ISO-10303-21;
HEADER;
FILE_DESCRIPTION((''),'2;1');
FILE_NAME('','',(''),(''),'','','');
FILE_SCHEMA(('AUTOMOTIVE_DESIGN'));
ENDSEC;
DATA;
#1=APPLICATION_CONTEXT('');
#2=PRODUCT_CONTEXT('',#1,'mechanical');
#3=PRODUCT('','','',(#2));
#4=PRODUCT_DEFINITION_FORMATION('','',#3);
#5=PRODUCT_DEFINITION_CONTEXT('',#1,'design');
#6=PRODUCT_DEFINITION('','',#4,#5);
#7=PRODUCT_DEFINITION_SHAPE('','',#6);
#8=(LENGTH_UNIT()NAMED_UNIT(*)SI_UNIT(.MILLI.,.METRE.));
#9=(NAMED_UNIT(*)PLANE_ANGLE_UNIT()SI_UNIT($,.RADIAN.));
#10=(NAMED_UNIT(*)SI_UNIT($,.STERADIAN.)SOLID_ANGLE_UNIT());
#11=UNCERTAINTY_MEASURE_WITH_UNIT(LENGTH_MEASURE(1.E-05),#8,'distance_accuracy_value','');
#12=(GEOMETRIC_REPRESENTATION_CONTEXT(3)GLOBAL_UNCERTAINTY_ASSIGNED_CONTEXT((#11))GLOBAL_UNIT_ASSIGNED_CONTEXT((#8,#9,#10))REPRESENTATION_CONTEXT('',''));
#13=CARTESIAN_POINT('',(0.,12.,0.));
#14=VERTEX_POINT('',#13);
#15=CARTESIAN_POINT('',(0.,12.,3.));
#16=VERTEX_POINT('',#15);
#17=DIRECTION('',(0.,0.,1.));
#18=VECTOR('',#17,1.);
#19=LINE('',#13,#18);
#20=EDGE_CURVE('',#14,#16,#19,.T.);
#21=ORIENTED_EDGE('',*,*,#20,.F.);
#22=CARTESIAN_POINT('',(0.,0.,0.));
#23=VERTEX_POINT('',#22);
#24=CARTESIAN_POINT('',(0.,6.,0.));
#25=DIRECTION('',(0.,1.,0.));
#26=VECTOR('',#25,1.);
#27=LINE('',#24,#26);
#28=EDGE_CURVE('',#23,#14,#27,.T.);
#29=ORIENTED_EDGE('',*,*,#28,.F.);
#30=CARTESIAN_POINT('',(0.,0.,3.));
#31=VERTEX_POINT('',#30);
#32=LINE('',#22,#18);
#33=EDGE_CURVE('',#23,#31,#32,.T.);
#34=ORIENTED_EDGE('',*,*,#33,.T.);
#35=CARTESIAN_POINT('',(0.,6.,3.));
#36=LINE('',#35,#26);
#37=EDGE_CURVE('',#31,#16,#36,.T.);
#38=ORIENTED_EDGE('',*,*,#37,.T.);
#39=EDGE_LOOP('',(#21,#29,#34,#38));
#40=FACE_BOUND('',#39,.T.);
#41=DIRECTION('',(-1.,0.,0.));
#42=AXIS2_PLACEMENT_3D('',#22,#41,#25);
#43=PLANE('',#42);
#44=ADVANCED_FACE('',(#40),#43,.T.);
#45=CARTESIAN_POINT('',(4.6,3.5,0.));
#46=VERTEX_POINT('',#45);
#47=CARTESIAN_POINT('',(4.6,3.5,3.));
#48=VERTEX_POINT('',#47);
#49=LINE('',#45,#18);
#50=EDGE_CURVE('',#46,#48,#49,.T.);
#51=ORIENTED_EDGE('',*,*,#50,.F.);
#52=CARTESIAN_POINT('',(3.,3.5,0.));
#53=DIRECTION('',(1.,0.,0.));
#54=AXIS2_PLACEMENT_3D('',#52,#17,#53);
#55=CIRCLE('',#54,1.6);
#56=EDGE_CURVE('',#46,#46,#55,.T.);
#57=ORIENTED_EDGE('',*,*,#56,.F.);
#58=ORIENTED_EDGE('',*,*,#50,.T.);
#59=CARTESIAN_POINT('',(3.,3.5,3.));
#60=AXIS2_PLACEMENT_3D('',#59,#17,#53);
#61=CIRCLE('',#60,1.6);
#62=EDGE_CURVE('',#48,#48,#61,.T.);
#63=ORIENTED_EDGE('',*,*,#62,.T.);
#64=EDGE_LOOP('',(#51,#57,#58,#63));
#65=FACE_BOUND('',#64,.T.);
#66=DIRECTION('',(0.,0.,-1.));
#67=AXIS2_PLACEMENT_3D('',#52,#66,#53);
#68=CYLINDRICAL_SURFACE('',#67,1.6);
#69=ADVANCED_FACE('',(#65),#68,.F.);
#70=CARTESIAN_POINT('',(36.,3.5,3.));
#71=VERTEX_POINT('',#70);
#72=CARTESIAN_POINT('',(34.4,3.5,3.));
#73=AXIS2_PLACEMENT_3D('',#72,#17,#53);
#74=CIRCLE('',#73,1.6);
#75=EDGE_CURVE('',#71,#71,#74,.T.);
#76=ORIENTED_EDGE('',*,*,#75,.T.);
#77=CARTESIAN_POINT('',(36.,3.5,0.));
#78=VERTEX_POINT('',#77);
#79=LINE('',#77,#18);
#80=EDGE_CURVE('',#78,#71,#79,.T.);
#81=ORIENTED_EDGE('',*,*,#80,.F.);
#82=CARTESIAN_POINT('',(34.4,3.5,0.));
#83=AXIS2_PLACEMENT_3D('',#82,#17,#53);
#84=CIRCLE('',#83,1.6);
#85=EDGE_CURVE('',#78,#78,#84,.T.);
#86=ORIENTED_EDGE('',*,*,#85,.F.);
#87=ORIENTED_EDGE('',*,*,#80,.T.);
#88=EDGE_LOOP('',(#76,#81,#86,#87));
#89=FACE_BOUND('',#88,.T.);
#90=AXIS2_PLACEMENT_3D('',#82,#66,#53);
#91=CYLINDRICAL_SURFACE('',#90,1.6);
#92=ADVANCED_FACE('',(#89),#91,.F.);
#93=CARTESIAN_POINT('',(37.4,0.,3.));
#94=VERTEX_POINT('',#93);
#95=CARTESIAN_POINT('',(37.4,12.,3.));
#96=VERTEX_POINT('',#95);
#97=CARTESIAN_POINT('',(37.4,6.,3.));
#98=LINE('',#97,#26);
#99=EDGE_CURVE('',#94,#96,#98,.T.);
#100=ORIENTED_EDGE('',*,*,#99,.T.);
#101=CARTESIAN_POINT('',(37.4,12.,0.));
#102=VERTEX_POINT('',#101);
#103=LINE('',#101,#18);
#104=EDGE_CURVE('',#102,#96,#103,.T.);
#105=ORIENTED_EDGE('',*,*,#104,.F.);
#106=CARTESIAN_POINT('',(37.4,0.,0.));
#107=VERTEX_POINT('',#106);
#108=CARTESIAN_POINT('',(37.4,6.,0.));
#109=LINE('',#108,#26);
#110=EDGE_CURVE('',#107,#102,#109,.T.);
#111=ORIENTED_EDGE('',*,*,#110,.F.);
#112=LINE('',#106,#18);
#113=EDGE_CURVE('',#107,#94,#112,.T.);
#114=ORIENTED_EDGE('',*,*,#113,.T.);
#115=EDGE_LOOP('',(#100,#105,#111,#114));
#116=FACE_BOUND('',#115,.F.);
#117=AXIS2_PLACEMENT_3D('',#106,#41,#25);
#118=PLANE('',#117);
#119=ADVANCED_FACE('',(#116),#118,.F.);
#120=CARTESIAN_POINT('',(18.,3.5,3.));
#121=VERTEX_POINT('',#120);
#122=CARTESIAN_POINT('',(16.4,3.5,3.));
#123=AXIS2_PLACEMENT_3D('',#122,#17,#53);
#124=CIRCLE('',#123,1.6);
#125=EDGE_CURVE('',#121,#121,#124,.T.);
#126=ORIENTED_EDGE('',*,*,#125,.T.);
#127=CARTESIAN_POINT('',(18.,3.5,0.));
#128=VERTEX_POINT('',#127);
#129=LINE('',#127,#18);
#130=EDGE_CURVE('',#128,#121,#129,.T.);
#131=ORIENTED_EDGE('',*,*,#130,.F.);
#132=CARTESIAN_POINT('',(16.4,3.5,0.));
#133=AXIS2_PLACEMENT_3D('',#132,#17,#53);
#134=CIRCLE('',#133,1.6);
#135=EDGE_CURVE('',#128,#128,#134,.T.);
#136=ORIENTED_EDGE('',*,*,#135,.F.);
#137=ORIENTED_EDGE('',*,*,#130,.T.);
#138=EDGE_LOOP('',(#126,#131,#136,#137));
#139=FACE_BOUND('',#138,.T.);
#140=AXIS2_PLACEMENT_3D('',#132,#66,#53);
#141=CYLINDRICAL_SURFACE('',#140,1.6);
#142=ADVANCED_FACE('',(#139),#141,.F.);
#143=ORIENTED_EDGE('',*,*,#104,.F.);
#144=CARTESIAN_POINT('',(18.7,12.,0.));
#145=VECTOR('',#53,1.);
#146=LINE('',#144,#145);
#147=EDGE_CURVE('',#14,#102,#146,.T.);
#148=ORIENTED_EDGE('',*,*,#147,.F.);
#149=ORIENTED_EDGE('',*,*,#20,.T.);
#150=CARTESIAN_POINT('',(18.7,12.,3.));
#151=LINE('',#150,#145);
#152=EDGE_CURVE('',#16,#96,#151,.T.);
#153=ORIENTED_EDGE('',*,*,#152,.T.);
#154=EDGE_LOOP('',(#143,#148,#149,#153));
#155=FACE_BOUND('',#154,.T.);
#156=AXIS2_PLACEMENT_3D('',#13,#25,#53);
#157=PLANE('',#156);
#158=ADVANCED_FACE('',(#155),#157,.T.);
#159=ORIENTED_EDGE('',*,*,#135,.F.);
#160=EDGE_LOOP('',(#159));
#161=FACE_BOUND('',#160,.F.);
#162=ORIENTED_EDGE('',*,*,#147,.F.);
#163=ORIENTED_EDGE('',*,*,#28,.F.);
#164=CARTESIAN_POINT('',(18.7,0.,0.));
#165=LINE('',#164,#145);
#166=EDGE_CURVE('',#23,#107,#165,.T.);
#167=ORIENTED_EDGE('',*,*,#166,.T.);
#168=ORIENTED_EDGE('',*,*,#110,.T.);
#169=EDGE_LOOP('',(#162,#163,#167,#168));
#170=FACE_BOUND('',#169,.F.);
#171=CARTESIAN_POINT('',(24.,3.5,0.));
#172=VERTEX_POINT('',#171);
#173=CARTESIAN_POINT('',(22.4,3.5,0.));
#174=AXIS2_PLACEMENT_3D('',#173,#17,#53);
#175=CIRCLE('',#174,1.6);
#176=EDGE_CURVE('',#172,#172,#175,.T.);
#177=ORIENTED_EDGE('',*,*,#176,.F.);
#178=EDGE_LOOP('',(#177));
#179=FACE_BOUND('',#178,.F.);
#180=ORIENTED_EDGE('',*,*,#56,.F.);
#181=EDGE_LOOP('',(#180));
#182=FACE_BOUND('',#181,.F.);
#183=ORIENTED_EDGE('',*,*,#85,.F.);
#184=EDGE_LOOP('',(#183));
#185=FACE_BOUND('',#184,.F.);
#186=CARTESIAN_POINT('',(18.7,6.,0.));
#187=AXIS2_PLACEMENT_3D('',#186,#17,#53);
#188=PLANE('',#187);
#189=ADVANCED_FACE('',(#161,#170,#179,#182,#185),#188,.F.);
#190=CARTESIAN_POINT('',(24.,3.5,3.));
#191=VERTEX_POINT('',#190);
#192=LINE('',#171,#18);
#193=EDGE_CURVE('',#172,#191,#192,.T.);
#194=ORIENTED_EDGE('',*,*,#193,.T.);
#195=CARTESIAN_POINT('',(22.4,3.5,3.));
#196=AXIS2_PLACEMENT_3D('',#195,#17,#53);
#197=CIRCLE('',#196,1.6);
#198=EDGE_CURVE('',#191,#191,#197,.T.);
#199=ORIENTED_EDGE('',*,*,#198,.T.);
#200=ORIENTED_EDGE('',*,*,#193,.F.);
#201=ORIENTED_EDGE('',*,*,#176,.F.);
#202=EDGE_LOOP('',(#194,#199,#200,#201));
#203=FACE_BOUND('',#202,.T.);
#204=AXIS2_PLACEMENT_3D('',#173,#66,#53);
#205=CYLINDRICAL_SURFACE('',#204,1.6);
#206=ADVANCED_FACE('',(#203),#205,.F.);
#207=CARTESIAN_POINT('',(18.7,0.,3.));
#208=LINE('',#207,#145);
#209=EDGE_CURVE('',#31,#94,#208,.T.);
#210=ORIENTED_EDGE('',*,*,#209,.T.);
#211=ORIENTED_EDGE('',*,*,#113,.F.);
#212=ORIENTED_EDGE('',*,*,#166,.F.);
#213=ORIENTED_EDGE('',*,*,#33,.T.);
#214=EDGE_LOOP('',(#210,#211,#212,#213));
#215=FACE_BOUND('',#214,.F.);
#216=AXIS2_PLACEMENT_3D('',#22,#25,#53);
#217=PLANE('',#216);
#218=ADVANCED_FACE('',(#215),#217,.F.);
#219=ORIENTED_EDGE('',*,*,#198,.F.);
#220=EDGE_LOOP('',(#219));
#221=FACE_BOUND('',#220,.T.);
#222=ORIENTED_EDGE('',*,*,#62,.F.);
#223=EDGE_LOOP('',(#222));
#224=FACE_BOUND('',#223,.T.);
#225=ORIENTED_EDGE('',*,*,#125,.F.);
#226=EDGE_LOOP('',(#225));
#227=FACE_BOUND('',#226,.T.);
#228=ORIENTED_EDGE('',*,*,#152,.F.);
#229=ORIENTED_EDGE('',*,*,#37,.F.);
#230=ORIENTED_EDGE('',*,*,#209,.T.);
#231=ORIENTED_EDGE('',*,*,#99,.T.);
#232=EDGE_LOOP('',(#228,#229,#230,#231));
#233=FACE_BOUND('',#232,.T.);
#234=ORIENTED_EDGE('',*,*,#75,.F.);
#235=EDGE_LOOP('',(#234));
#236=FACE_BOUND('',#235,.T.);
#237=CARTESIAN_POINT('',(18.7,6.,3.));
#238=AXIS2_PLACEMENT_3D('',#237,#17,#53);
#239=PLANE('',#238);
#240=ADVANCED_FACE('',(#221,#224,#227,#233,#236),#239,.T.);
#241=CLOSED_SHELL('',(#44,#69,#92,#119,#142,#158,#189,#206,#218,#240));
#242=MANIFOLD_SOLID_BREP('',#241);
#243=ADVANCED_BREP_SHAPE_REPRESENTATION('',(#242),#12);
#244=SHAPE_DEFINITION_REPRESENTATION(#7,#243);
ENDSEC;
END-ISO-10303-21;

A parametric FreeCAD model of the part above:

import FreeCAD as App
import Part
import Sketcher

V = App.Vector


def add_polygon(sketch, points):
    """Adds a closed chain of lines whose ends are joined by coincident constraints."""
    first, n = sketch.GeometryCount, len(points)
    for a, b in zip(points, points[1:] + points[:1]):
        sketch.addGeometry(Part.LineSegment(App.Vector(*a, 0), App.Vector(*b, 0)), False)
    for i in range(n):
        sketch.addConstraint(Sketcher.Constraint("Coincident", first + i, 2, first + (i + 1) % n, 1))

doc = App.newDocument("Part")
body = doc.addObject("PartDesign::Body", "Body")

# Sketch on XY plane
sketch1 = doc.addObject("Sketcher::SketchObject", "Sketch")
body.addObject(sketch1)
sketch1.AttachmentSupport = (doc.XY_Plane, [""])
sketch1.MapMode = "FlatFace"
add_polygon(sketch1, [(0, 12), (0, 0), (37.4, 0), (37.4, 12)])  # lines 0-3
sketch1.addGeometry(Part.Circle(V(3, 3.5, 0), V(0, 0, 1), 1.6), False)  # 4
sketch1.addGeometry(Part.Circle(V(16.4, 3.5, 0), V(0, 0, 1), 1.6), False)  # 5
sketch1.addGeometry(Part.Circle(V(22.4, 3.5, 0), V(0, 0, 1), 1.6), False)  # 6
sketch1.addGeometry(Part.Circle(V(34.4, 3.5, 0), V(0, 0, 1), 1.6), False)  # 7
sketch1.addConstraint([
    Sketcher.Constraint("Vertical", 0),
    Sketcher.Constraint("Horizontal", 1),
    Sketcher.Constraint("Vertical", 2),
    Sketcher.Constraint("Horizontal", 3),
    Sketcher.Constraint("Coincident", 0, 2, -1, 1),
    Sketcher.Constraint("Equal", 4, 5),
    Sketcher.Constraint("Equal", 5, 6),
    Sketcher.Constraint("Equal", 6, 7),
    Sketcher.Constraint("Horizontal", 4, 3, 5, 3),
    Sketcher.Constraint("Horizontal", 5, 3, 6, 3),
    Sketcher.Constraint("Horizontal", 6, 3, 7, 3),
    Sketcher.Constraint("Diameter", 4, 3.2),
    Sketcher.Constraint("DistanceY", 0, 2, 0, 1, 12.0),
    Sketcher.Constraint("DistanceX", 1, 1, 1, 2, 37.4),
    Sketcher.Constraint("DistanceX", -1, 1, 4, 3, 3.0),
    Sketcher.Constraint("DistanceX", 5, 3, 6, 3, 6.0),
    Sketcher.Constraint("DistanceX", 6, 3, 7, 3, 12.0),
    Sketcher.Constraint("DistanceX", 7, 3, 1, 2, 3.0),
    Sketcher.Constraint("DistanceY", -1, 1, 4, 3, 3.5),
])
pad1 = doc.addObject("PartDesign::Pad", "Pad")
body.addObject(pad1)
pad1.Profile = sketch1
pad1.Length = 3

doc.recompute()
